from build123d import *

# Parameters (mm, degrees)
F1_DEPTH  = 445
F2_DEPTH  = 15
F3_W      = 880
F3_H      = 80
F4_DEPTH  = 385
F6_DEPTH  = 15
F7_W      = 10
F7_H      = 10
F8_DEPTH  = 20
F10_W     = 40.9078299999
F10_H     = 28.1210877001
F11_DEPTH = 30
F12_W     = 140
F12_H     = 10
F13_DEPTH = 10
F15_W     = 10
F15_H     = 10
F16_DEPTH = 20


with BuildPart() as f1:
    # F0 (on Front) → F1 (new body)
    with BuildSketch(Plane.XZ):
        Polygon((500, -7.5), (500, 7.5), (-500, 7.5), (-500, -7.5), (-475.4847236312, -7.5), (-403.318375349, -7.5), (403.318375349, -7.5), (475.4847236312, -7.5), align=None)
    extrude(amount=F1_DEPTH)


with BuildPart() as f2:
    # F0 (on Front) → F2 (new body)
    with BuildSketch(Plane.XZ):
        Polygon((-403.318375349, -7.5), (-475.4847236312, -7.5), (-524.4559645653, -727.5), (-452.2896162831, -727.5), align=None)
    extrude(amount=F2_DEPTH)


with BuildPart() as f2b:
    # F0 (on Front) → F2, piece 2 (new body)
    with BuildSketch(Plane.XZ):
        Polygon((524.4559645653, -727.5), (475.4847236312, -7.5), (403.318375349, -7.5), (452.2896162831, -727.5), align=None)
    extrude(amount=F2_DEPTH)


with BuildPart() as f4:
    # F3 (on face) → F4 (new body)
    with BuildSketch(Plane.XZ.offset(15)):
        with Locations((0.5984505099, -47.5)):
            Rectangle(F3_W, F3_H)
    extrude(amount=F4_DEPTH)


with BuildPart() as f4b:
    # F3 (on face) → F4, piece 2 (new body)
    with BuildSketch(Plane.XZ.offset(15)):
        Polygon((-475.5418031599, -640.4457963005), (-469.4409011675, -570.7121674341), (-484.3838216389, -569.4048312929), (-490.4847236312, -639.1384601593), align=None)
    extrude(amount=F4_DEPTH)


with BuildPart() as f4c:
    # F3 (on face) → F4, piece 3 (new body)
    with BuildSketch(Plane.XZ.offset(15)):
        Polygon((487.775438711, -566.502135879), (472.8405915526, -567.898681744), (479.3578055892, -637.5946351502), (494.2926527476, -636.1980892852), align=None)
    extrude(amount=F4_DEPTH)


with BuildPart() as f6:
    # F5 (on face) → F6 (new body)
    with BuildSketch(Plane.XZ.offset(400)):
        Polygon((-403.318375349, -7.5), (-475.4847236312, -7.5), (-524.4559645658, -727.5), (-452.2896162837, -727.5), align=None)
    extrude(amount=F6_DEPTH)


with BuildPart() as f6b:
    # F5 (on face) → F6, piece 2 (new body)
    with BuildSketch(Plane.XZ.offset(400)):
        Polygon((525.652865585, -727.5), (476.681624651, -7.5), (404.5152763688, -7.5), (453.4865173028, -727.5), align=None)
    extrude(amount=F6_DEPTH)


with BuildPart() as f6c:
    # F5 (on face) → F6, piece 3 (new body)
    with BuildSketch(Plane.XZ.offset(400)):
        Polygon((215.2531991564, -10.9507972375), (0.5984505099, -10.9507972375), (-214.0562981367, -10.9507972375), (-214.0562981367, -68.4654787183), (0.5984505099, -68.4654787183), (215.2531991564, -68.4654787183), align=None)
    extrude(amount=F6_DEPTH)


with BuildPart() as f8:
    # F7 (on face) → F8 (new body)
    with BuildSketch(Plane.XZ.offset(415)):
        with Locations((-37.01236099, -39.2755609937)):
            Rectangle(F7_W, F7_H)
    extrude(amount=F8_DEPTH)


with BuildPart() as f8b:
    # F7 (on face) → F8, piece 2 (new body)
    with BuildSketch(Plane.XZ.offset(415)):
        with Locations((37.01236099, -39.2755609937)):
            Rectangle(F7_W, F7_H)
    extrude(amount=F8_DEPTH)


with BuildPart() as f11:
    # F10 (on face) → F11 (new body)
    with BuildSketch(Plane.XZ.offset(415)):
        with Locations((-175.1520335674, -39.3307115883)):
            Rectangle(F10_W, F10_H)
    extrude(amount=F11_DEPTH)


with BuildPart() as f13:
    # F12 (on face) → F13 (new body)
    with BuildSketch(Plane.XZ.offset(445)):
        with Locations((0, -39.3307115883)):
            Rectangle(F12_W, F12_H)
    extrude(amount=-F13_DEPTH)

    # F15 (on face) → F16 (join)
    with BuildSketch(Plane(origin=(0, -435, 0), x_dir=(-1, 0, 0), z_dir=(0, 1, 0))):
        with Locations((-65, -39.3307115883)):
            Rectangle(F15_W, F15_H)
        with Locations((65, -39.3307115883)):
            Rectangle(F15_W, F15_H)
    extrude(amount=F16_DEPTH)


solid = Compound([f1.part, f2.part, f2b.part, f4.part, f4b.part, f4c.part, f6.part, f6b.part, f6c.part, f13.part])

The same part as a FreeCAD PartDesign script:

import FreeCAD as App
import Part
import Sketcher

V = App.Vector
Q = App.Units.Quantity

doc = App.newDocument("Part")
body = doc.addObject("PartDesign::Body", "Body")

sketch1 = body.newObject("Sketcher::SketchObject", "Sketch")
sketch1.AttachmentSupport = (doc.getObject("XZ_Plane"), [""])
sketch1.MapMode = "FlatFace"
sketch1.addGeometry([
    Part.LineSegment(V(500, -8, 0), V(500, 8, 0)),
    Part.LineSegment(V(500, 8, 0), V(-500, 8, 0)),
    Part.LineSegment(V(-500, 8, 0), V(-500, -8, 0)),
    Part.LineSegment(V(-500, -8, 0), V(500, -8, 0)),
], False)
sketch1.addConstraint([
    Sketcher.Constraint("Coincident", 0, 2, 1, 1),
    Sketcher.Constraint("Coincident", 1, 2, 2, 1),
    Sketcher.Constraint("Coincident", 2, 2, 3, 1),
    Sketcher.Constraint("Coincident", 3, 2, 0, 1),
    Sketcher.Constraint("Vertical", 0),
    Sketcher.Constraint("Horizontal", 1),
    Sketcher.Constraint("Vertical", 2),
    Sketcher.Constraint("Horizontal", 3),
    Sketcher.Constraint("Symmetric", 0, 2, 2, 2, -1, 1),
    Sketcher.Constraint("DistanceX", 1, 2, 1, 1, 1000.0),
    Sketcher.Constraint("DistanceY", 0, 1, 0, 2, 15.0),
])
pad1 = body.newObject("PartDesign::Pad", "Pad")
pad1.Profile = sketch1
pad1.Length = 445
body2 = doc.addObject("PartDesign::Body", "Body001")

sketch2 = body2.newObject("Sketcher::SketchObject", "Sketch001")
sketch2.AttachmentSupport = (doc.getObject("XZ_Plane001"), [""])
sketch2.MapMode = "FlatFace"
sketch2.addGeometry([
    Part.LineSegment(V(-403, -8, 0), V(-475, -8, 0)),
    Part.LineSegment(V(-475, -8, 0), V(-524, -728, 0)),
    Part.LineSegment(V(-524, -728, 0), V(-452, -728, 0)),
    Part.LineSegment(V(-452, -728, 0), V(-403, -8, 0)),
], False)
sketch2.addConstraint([
    Sketcher.Constraint("Coincident", 0, 2, 1, 1),
    Sketcher.Constraint("Coincident", 1, 2, 2, 1),
    Sketcher.Constraint("Coincident", 2, 2, 3, 1),
    Sketcher.Constraint("Coincident", 3, 2, 0, 1),
    Sketcher.Constraint("Horizontal", 0),
    Sketcher.Constraint("Horizontal", 2),
    Sketcher.Constraint("Parallel", 1, 3),
    Sketcher.Constraint("DistanceY", 1, 2, 0, 2, 720.0),
    Sketcher.Constraint("DistanceY", 0, 2, -1, 1, 7.5),
    Sketcher.Constraint("DistanceX", 0, 2, 0, 1, 72.166348),
    Sketcher.Constraint("DistanceX", 1, 2, 0, 2, 48.971241),
    Sketcher.Constraint("DistanceX", 0, 2, -1, 1, 475.484724),
])
pad2 = body2.newObject("PartDesign::Pad", "Pad001")
pad2.Profile = sketch2
pad2.Length = 15
body3 = doc.addObject("PartDesign::Body", "Body002")

sketch3 = body3.newObject("Sketcher::SketchObject", "Sketch002")
sketch3.AttachmentSupport = (doc.getObject("XZ_Plane002"), [""])
sketch3.MapMode = "FlatFace"
sketch3.addGeometry([
    Part.LineSegment(V(524, -728, 0), V(475, -8, 0)),
    Part.LineSegment(V(475, -8, 0), V(403, -8, 0)),
    Part.LineSegment(V(403, -8, 0), V(452, -728, 0)),
    Part.LineSegment(V(452, -728, 0), V(524, -728, 0)),
], False)
sketch3.addConstraint([
    Sketcher.Constraint("Coincident", 0, 2, 1, 1),
    Sketcher.Constraint("Coincident", 1, 2, 2, 1),
    Sketcher.Constraint("Coincident", 2, 2, 3, 1),
    Sketcher.Constraint("Coincident", 3, 2, 0, 1),
    Sketcher.Constraint("Horizontal", 1),
    Sketcher.Constraint("Horizontal", 3),
    Sketcher.Constraint("Parallel", 0, 2),
    Sketcher.Constraint("DistanceY", 2, 2, 0, 2, 720.0),
    Sketcher.Constraint("DistanceY", 0, 2, -1, 1, 7.5),
    Sketcher.Constraint("DistanceX", 1, 2, 1, 1, 72.166348),
    Sketcher.Constraint("DistanceX", 1, 2, 2, 2, 48.971241),
    Sketcher.Constraint("DistanceX", -1, 1, 0, 2, 475.484724),
])
pad3 = body3.newObject("PartDesign::Pad", "Pad002")
pad3.Profile = sketch3
pad3.Length = 15
body4 = doc.addObject("PartDesign::Body", "Body003")

sketch4 = body4.newObject("Sketcher::SketchObject", "Sketch003")
sketch4.AttachmentSupport = (doc.getObject("XZ_Plane003"), [""])
sketch4.MapMode = "FlatFace"
sketch4.AttachmentOffset = App.Placement(V(0, 0, 15), App.Rotation())
sketch4.addGeometry([
    Part.LineSegment(V(-439, -8, 0), V(-439, -88, 0)),
    Part.LineSegment(V(-439, -88, 0), V(441, -88, 0)),
    Part.LineSegment(V(441, -88, 0), V(441, -8, 0)),
    Part.LineSegment(V(441, -8, 0), V(-439, -8, 0)),
], False)
sketch4.addConstraint([
    Sketcher.Constraint("Coincident", 0, 2, 1, 1),
    Sketcher.Constraint("Coincident", 1, 2, 2, 1),
    Sketcher.Constraint("Coincident", 2, 2, 3, 1),
    Sketcher.Constraint("Coincident", 3, 2, 0, 1),
    Sketcher.Constraint("Vertical", 0),
    Sketcher.Constraint("Horizontal", 1),
    Sketcher.Constraint("Vertical", 2),
    Sketcher.Constraint("Horizontal", 3),
    Sketcher.Constraint("DistanceX", 1, 1, 1, 2, 880.0),
    Sketcher.Constraint("DistanceY", 0, 2, 0, 1, 80.0),
    Sketcher.Constraint("DistanceY", 0, 2, -1, 1, 87.5),
    Sketcher.Constraint("DistanceX", 0, 2, -1, 1, 439.401549),
])
pad4 = body4.newObject("PartDesign::Pad", "Pad003")
pad4.Profile = sketch4
pad4.Length = 385
body5 = doc.addObject("PartDesign::Body", "Body004")

sketch5 = body5.newObject("Sketcher::SketchObject", "Sketch004")
sketch5.AttachmentSupport = (doc.getObject("XZ_Plane004"), [""])
sketch5.MapMode = "FlatFace"
sketch5.AttachmentOffset = App.Placement(V(0, 0, 15), App.Rotation())
sketch5.addGeometry([
    Part.LineSegment(V(-476, -640, 0), V(-469, -571, 0)),
    Part.LineSegment(V(-469, -571, 0), V(-484, -569, 0)),
    Part.LineSegment(V(-484, -569, 0), V(-490, -639, 0)),
    Part.LineSegment(V(-490, -639, 0), V(-476, -640, 0)),
], False)
sketch5.addConstraint([
    Sketcher.Constraint("Coincident", 0, 2, 1, 1),
    Sketcher.Constraint("Coincident", 1, 2, 2, 1),
    Sketcher.Constraint("Coincident", 2, 2, 3, 1),
    Sketcher.Constraint("Coincident", 3, 2, 0, 1),
    Sketcher.Constraint("Perpendicular", 0, 1),
    Sketcher.Constraint("Perpendicular", 1, 2),
    Sketcher.Constraint("Perpendicular", 2, 3),
    Sketcher.Constraint("Angle", 0, Q("85 deg")),
    Sketcher.Constraint("Distance", 0, 70.0),
    Sketcher.Constraint("Distance", 1, 15.0),
    Sketcher.Constraint("DistanceX", 0, 2, -1, 1, 469.440901),
    Sketcher.Constraint("DistanceY", 1, 2, -1, 1, 569.404831),
])
pad5 = body5.newObject("PartDesign::Pad", "Pad004")
pad5.Profile = sketch5
pad5.Length = 385
body6 = doc.addObject("PartDesign::Body", "Body005")

sketch6 = body6.newObject("Sketcher::SketchObject", "Sketch005")
sketch6.AttachmentSupport = (doc.getObject("XZ_Plane005"), [""])
sketch6.MapMode = "FlatFace"
sketch6.AttachmentOffset = App.Placement(V(0, 0, 15), App.Rotation())
sketch6.addGeometry([
    Part.LineSegment(V(488, -567, 0), V(473, -568, 0)),
    Part.LineSegment(V(473, -568, 0), V(479, -638, 0)),
    Part.LineSegment(V(479, -638, 0), V(494, -636, 0)),
    Part.LineSegment(V(494, -636, 0), V(488, -567, 0)),
], False)
sketch6.addConstraint([
    Sketcher.Constraint("Coincident", 0, 2, 1, 1),
    Sketcher.Constraint("Coincident", 1, 2, 2, 1),
    Sketcher.Constraint("Coincident", 2, 2, 3, 1),
    Sketcher.Constraint("Coincident", 3, 2, 0, 1),
    Sketcher.Constraint("Perpendicular", 0, 1),
    Sketcher.Constraint("Perpendicular", 1, 2),
    Sketcher.Constraint("Perpendicular", 2, 3),
    Sketcher.Constraint("Distance", 0, 15.0),
    Sketcher.Constraint("Distance", 1, 70.0),
    Sketcher.Constraint("DistanceY", 1, 2, 3, 2, 71.092499),
    Sketcher.Constraint("DistanceX", -1, 1, 0, 2, 472.840592),
    Sketcher.Constraint("DistanceY", 0, 2, -1, 1, 567.898682),
])
pad6 = body6.newObject("PartDesign::Pad", "Pad005")
pad6.Profile = sketch6
pad6.Length = 385
body7 = doc.addObject("PartDesign::Body", "Body006")

sketch7 = body7.newObject("Sketcher::SketchObject", "Sketch006")
sketch7.AttachmentSupport = (doc.getObject("XZ_Plane006"), [""])
sketch7.MapMode = "FlatFace"
sketch7.AttachmentOffset = App.Placement(V(0, 0, 400), App.Rotation())
sketch7.addGeometry([
    Part.LineSegment(V(-403, -8, 0), V(-475, -8, 0)),
    Part.LineSegment(V(-475, -8, 0), V(-524, -728, 0)),
    Part.LineSegment(V(-524, -728, 0), V(-452, -728, 0)),
    Part.LineSegment(V(-452, -728, 0), V(-403, -8, 0)),
], False)
sketch7.addConstraint([
    Sketcher.Constraint("Coincident", 0, 2, 1, 1),
    Sketcher.Constraint("Coincident", 1, 2, 2, 1),
    Sketcher.Constraint("Coincident", 2, 2, 3, 1),
    Sketcher.Constraint("Coincident", 3, 2, 0, 1),
    Sketcher.Constraint("Horizontal", 0),
    Sketcher.Constraint("Horizontal", 2),
    Sketcher.Constraint("Parallel", 1, 3),
    Sketcher.Constraint("DistanceY", 1, 2, 0, 2, 720.0),
    Sketcher.Constraint("DistanceY", 0, 2, -1, 1, 7.5),
    Sketcher.Constraint("DistanceX", 0, 2, 0, 1, 72.166348),
    Sketcher.Constraint("DistanceX", 1, 2, 0, 2, 48.971241),
    Sketcher.Constraint("DistanceX", 0, 2, -1, 1, 475.484724),
])
pad7 = body7.newObject("PartDesign::Pad", "Pad006")
pad7.Profile = sketch7
pad7.Length = 15
body8 = doc.addObject("PartDesign::Body", "Body007")

sketch8 = body8.newObject("Sketcher::SketchObject", "Sketch007")
sketch8.AttachmentSupport = (doc.getObject("XZ_Plane007"), [""])
sketch8.MapMode = "FlatFace"
sketch8.AttachmentOffset = App.Placement(V(0, 0, 400), App.Rotation())
sketch8.addGeometry([
    Part.LineSegment(V(526, -728, 0), V(477, -8, 0)),
    Part.LineSegment(V(477, -8, 0), V(405, -8, 0)),
    Part.LineSegment(V(405, -8, 0), V(453, -728, 0)),
    Part.LineSegment(V(453, -728, 0), V(526, -728, 0)),
], False)
sketch8.addConstraint([
    Sketcher.Constraint("Coincident", 0, 2, 1, 1),
    Sketcher.Constraint("Coincident", 1, 2, 2, 1),
    Sketcher.Constraint("Coincident", 2, 2, 3, 1),
    Sketcher.Constraint("Coincident", 3, 2, 0, 1),
    Sketcher.Constraint("Horizontal", 1),
    Sketcher.Constraint("Horizontal", 3),
    Sketcher.Constraint("Parallel", 0, 2),
    Sketcher.Constraint("DistanceY", 2, 2, 0, 2, 720.0),
    Sketcher.Constraint("DistanceY", 0, 2, -1, 1, 7.5),
    Sketcher.Constraint("DistanceX", 1, 2, 1, 1, 72.166348),
    Sketcher.Constraint("DistanceX", 1, 2, 2, 2, 48.971241),
    Sketcher.Constraint("DistanceX", -1, 1, 0, 2, 476.681625),
])
pad8 = body8.newObject("PartDesign::Pad", "Pad007")
pad8.Profile = sketch8
pad8.Length = 15
body9 = doc.addObject("PartDesign::Body", "Body008")

sketch9 = body9.newObject("Sketcher::SketchObject", "Sketch008")
sketch9.AttachmentSupport = (doc.getObject("XZ_Plane008"), [""])
sketch9.MapMode = "FlatFace"
sketch9.AttachmentOffset = App.Placement(V(0, 0, 400), App.Rotation())
sketch9.addGeometry([
    Part.LineSegment(V(215, -11, 0), V(-214, -11, 0)),
    Part.LineSegment(V(-214, -11, 0), V(-214, -68, 0)),
    Part.LineSegment(V(-214, -68, 0), V(215, -68, 0)),
    Part.LineSegment(V(215, -68, 0), V(215, -11, 0)),
], False)
sketch9.addConstraint([
    Sketcher.Constraint("Coincident", 0, 2, 1, 1),
    Sketcher.Constraint("Coincident", 1, 2, 2, 1),
    Sketcher.Constraint("Coincident", 2, 2, 3, 1),
    Sketcher.Constraint("Coincident", 3, 2, 0, 1),
    Sketcher.Constraint("Horizontal", 0),
    Sketcher.Constraint("Vertical", 1),
    Sketcher.Constraint("Horizontal", 2),
    Sketcher.Constraint("Vertical", 3),
    Sketcher.Constraint("DistanceY", 1, 2, 1, 1, 57.514681),
    Sketcher.Constraint("DistanceX", 0, 2, -1, 1, 214.056298),
    Sketcher.Constraint("DistanceX", -1, 1, 2, 2, 215.253199),
    Sketcher.Constraint("DistanceY", 1, 2, -1, 1, 68.465479),
])
pad9 = body9.newObject("PartDesign::Pad", "Pad008")
pad9.Profile = sketch9
pad9.Length = 15
body10 = doc.addObject("PartDesign::Body", "Body009")

sketch10 = body10.newObject("Sketcher::SketchObject", "Sketch009")
sketch10.AttachmentSupport = (doc.getObject("XZ_Plane009"), [""])
sketch10.MapMode = "FlatFace"
sketch10.AttachmentOffset = App.Placement(V(0, 0, 415), App.Rotation())
sketch10.addGeometry([
    Part.LineSegment(V(-42, -34, 0), V(-42, -44, 0)),
    Part.LineSegment(V(-42, -44, 0), V(-32, -44, 0)),
    Part.LineSegment(V(-32, -44, 0), V(-32, -34, 0)),
    Part.LineSegment(V(-32, -34, 0), V(-42, -34, 0)),
], False)
sketch10.addConstraint([
    Sketcher.Constraint("Coincident", 0, 2, 1, 1),
    Sketcher.Constraint("Coincident", 1, 2, 2, 1),
    Sketcher.Constraint("Coincident", 2, 2, 3, 1),
    Sketcher.Constraint("Coincident", 3, 2, 0, 1),
    Sketcher.Constraint("Vertical", 0),
    Sketcher.Constraint("Horizontal", 1),
    Sketcher.Constraint("Vertical", 2),
    Sketcher.Constraint("Horizontal", 3),
    Sketcher.Constraint("Equal", 3, 0),
    Sketcher.Constraint("DistanceX", 1, 1, 1, 2, 10.0),
    Sketcher.Constraint("DistanceX", 0, 2, -1, 1, 42.012361),
    Sketcher.Constraint("DistanceY", 0, 2, -1, 1, 44.275561),
])
pad10 = body10.newObject("PartDesign::Pad", "Pad009")
pad10.Profile = sketch10
pad10.Length = 20
body11 = doc.addObject("PartDesign::Body", "Body010")

sketch11 = body11.newObject("Sketcher::SketchObject", "Sketch010")
sketch11.AttachmentSupport = (doc.getObject("XZ_Plane010"), [""])
sketch11.MapMode = "FlatFace"
sketch11.AttachmentOffset = App.Placement(V(0, 0, 415), App.Rotation())
sketch11.addGeometry([
    Part.LineSegment(V(32, -34, 0), V(32, -44, 0)),
    Part.LineSegment(V(32, -44, 0), V(42, -44, 0)),
    Part.LineSegment(V(42, -44, 0), V(42, -34, 0)),
    Part.LineSegment(V(42, -34, 0), V(32, -34, 0)),
], False)
sketch11.addConstraint([
    Sketcher.Constraint("Coincident", 0, 2, 1, 1),
    Sketcher.Constraint("Coincident", 1, 2, 2, 1),
    Sketcher.Constraint("Coincident", 2, 2, 3, 1),
    Sketcher.Constraint("Coincident", 3, 2, 0, 1),
    Sketcher.Constraint("Vertical", 0),
    Sketcher.Constraint("Horizontal", 1),
    Sketcher.Constraint("Vertical", 2),
    Sketcher.Constraint("Horizontal", 3),
    Sketcher.Constraint("Equal", 3, 0),
    Sketcher.Constraint("DistanceX", 1, 1, 1, 2, 10.0),
    Sketcher.Constraint("DistanceX", -1, 1, 0, 2, 32.012361),
    Sketcher.Constraint("DistanceY", 0, 2, -1, 1, 44.275561),
])
pad11 = body11.newObject("PartDesign::Pad", "Pad010")
pad11.Profile = sketch11
pad11.Length = 20
body12 = doc.addObject("PartDesign::Body", "Body011")

sketch12 = body12.newObject("Sketcher::SketchObject", "Sketch011")
sketch12.AttachmentSupport = (doc.getObject("XZ_Plane011"), [""])
sketch12.MapMode = "FlatFace"
sketch12.AttachmentOffset = App.Placement(V(0, 0, 415), App.Rotation())
sketch12.addGeometry([
    Part.LineSegment(V(-196, -25, 0), V(-196, -53, 0)),
    Part.LineSegment(V(-196, -53, 0), V(-155, -53, 0)),
    Part.LineSegment(V(-155, -53, 0), V(-155, -25, 0)),
    Part.LineSegment(V(-155, -25, 0), V(-196, -25, 0)),
], False)
sketch12.addConstraint([
    Sketcher.Constraint("Coincident", 0, 2, 1, 1),
    Sketcher.Constraint("Coincident", 1, 2, 2, 1),
    Sketcher.Constraint("Coincident", 2, 2, 3, 1),
    Sketcher.Constraint("Coincident", 3, 2, 0, 1),
    Sketcher.Constraint("Vertical", 0),
    Sketcher.Constraint("Horizontal", 1),
    Sketcher.Constraint("Vertical", 2),
    Sketcher.Constraint("Horizontal", 3),
    Sketcher.Constraint("DistanceX", 1, 1, 1, 2, 40.90783),
    Sketcher.Constraint("DistanceY", 0, 2, 0, 1, 28.121088),
    Sketcher.Constraint("DistanceX", 0, 2, -1, 1, 195.605949),
    Sketcher.Constraint("DistanceY", 0, 2, -1, 1, 53.391255),
])
pad12 = body12.newObject("PartDesign::Pad", "Pad011")
pad12.Profile = sketch12
pad12.Length = 30
body13 = doc.addObject("PartDesign::Body", "Body012")

sketch13 = body13.newObject("Sketcher::SketchObject", "Sketch012")
sketch13.AttachmentSupport = (doc.getObject("XZ_Plane012"), [""])
sketch13.MapMode = "FlatFace"
sketch13.AttachmentOffset = App.Placement(V(0, 0, 445), App.Rotation())
sketch13.addGeometry([
    Part.LineSegment(V(-70, -34, 0), V(-70, -44, 0)),
    Part.LineSegment(V(-70, -44, 0), V(70, -44, 0)),
    Part.LineSegment(V(70, -44, 0), V(70, -34, 0)),
    Part.LineSegment(V(70, -34, 0), V(-70, -34, 0)),
], False)
sketch13.addConstraint([
    Sketcher.Constraint("Coincident", 0, 2, 1, 1),
    Sketcher.Constraint("Coincident", 1, 2, 2, 1),
    Sketcher.Constraint("Coincident", 2, 2, 3, 1),
    Sketcher.Constraint("Coincident", 3, 2, 0, 1),
    Sketcher.Constraint("Vertical", 0),
    Sketcher.Constraint("Horizontal", 1),
    Sketcher.Constraint("Vertical", 2),
    Sketcher.Constraint("Horizontal", 3),
    Sketcher.Constraint("DistanceX", 1, 1, 1, 2, 140.0),
    Sketcher.Constraint("DistanceY", 0, 2, 0, 1, 10.0),
    Sketcher.Constraint("DistanceX", 0, 2, -1, 1, 70.0),
    Sketcher.Constraint("DistanceY", 0, 2, -1, 1, 44.330712),
])
pad13 = body13.newObject("PartDesign::Pad", "Pad012")
pad13.Profile = sketch13
pad13.Length = 10
pad13.Reversed = True

sketch14 = body13.newObject("Sketcher::SketchObject", "Sketch013")
sketch14.AttachmentSupport = (doc.getObject("XZ_Plane012"), [""])
sketch14.MapMode = "FlatFace"
sketch14.AttachmentOffset = App.Placement(V(0, 0, 435), App.Rotation())
sketch14.addGeometry([
    Part.LineSegment(V(70, -34, 0), V(70, -44, 0)),
    Part.LineSegment(V(70, -44, 0), V(60, -44, 0)),
    Part.LineSegment(V(60, -44, 0), V(60, -34, 0)),
    Part.LineSegment(V(60, -34, 0), V(70, -34, 0)),
    Part.LineSegment(V(-60, -34, 0), V(-60, -44, 0)),
    Part.LineSegment(V(-60, -44, 0), V(-70, -44, 0)),
    Part.LineSegment(V(-70, -44, 0), V(-70, -34, 0)),
    Part.LineSegment(V(-70, -34, 0), V(-60, -34, 0)),
], False)
sketch14.addConstraint([
    Sketcher.Constraint("Coincident", 0, 2, 1, 1),
    Sketcher.Constraint("Coincident", 1, 2, 2, 1),
    Sketcher.Constraint("Coincident", 2, 2, 3, 1),
    Sketcher.Constraint("Coincident", 3, 2, 0, 1),
    Sketcher.Constraint("Coincident", 4, 2, 5, 1),
    Sketcher.Constraint("Coincident", 5, 2, 6, 1),
    Sketcher.Constraint("Coincident", 6, 2, 7, 1),
    Sketcher.Constraint("Coincident", 7, 2, 4, 1),
    Sketcher.Constraint("Vertical", 0),
    Sketcher.Constraint("Horizontal", 1),
    Sketcher.Constraint("Vertical", 2),
    Sketcher.Constraint("Horizontal", 3),
    Sketcher.Constraint("Vertical", 4),
    Sketcher.Constraint("Horizontal", 5),
    Sketcher.Constraint("Vertical", 6),
    Sketcher.Constraint("Horizontal", 7),
    Sketcher.Constraint("Symmetric", 1, 2, 4, 2, -2),
    Sketcher.Constraint("Symmetric", 3, 2, 6, 2, -2),
    Sketcher.Constraint("Equal", 7, 0),
    Sketcher.Constraint("DistanceX", 1, 2, 1, 1, 10.0),
    Sketcher.Constraint("DistanceX", -1, 1, 0, 2, 70.0),
    Sketcher.Constraint("DistanceY", 0, 2, -1, 1, 44.330712),
])
pad14 = body13.newObject("PartDesign::Pad", "Pad013")
pad14.Profile = sketch14
pad14.Length = 20
pad14.Reversed = True
body10.Visibility = False
body11.Visibility = False
body12.Visibility = False

doc.recompute()
